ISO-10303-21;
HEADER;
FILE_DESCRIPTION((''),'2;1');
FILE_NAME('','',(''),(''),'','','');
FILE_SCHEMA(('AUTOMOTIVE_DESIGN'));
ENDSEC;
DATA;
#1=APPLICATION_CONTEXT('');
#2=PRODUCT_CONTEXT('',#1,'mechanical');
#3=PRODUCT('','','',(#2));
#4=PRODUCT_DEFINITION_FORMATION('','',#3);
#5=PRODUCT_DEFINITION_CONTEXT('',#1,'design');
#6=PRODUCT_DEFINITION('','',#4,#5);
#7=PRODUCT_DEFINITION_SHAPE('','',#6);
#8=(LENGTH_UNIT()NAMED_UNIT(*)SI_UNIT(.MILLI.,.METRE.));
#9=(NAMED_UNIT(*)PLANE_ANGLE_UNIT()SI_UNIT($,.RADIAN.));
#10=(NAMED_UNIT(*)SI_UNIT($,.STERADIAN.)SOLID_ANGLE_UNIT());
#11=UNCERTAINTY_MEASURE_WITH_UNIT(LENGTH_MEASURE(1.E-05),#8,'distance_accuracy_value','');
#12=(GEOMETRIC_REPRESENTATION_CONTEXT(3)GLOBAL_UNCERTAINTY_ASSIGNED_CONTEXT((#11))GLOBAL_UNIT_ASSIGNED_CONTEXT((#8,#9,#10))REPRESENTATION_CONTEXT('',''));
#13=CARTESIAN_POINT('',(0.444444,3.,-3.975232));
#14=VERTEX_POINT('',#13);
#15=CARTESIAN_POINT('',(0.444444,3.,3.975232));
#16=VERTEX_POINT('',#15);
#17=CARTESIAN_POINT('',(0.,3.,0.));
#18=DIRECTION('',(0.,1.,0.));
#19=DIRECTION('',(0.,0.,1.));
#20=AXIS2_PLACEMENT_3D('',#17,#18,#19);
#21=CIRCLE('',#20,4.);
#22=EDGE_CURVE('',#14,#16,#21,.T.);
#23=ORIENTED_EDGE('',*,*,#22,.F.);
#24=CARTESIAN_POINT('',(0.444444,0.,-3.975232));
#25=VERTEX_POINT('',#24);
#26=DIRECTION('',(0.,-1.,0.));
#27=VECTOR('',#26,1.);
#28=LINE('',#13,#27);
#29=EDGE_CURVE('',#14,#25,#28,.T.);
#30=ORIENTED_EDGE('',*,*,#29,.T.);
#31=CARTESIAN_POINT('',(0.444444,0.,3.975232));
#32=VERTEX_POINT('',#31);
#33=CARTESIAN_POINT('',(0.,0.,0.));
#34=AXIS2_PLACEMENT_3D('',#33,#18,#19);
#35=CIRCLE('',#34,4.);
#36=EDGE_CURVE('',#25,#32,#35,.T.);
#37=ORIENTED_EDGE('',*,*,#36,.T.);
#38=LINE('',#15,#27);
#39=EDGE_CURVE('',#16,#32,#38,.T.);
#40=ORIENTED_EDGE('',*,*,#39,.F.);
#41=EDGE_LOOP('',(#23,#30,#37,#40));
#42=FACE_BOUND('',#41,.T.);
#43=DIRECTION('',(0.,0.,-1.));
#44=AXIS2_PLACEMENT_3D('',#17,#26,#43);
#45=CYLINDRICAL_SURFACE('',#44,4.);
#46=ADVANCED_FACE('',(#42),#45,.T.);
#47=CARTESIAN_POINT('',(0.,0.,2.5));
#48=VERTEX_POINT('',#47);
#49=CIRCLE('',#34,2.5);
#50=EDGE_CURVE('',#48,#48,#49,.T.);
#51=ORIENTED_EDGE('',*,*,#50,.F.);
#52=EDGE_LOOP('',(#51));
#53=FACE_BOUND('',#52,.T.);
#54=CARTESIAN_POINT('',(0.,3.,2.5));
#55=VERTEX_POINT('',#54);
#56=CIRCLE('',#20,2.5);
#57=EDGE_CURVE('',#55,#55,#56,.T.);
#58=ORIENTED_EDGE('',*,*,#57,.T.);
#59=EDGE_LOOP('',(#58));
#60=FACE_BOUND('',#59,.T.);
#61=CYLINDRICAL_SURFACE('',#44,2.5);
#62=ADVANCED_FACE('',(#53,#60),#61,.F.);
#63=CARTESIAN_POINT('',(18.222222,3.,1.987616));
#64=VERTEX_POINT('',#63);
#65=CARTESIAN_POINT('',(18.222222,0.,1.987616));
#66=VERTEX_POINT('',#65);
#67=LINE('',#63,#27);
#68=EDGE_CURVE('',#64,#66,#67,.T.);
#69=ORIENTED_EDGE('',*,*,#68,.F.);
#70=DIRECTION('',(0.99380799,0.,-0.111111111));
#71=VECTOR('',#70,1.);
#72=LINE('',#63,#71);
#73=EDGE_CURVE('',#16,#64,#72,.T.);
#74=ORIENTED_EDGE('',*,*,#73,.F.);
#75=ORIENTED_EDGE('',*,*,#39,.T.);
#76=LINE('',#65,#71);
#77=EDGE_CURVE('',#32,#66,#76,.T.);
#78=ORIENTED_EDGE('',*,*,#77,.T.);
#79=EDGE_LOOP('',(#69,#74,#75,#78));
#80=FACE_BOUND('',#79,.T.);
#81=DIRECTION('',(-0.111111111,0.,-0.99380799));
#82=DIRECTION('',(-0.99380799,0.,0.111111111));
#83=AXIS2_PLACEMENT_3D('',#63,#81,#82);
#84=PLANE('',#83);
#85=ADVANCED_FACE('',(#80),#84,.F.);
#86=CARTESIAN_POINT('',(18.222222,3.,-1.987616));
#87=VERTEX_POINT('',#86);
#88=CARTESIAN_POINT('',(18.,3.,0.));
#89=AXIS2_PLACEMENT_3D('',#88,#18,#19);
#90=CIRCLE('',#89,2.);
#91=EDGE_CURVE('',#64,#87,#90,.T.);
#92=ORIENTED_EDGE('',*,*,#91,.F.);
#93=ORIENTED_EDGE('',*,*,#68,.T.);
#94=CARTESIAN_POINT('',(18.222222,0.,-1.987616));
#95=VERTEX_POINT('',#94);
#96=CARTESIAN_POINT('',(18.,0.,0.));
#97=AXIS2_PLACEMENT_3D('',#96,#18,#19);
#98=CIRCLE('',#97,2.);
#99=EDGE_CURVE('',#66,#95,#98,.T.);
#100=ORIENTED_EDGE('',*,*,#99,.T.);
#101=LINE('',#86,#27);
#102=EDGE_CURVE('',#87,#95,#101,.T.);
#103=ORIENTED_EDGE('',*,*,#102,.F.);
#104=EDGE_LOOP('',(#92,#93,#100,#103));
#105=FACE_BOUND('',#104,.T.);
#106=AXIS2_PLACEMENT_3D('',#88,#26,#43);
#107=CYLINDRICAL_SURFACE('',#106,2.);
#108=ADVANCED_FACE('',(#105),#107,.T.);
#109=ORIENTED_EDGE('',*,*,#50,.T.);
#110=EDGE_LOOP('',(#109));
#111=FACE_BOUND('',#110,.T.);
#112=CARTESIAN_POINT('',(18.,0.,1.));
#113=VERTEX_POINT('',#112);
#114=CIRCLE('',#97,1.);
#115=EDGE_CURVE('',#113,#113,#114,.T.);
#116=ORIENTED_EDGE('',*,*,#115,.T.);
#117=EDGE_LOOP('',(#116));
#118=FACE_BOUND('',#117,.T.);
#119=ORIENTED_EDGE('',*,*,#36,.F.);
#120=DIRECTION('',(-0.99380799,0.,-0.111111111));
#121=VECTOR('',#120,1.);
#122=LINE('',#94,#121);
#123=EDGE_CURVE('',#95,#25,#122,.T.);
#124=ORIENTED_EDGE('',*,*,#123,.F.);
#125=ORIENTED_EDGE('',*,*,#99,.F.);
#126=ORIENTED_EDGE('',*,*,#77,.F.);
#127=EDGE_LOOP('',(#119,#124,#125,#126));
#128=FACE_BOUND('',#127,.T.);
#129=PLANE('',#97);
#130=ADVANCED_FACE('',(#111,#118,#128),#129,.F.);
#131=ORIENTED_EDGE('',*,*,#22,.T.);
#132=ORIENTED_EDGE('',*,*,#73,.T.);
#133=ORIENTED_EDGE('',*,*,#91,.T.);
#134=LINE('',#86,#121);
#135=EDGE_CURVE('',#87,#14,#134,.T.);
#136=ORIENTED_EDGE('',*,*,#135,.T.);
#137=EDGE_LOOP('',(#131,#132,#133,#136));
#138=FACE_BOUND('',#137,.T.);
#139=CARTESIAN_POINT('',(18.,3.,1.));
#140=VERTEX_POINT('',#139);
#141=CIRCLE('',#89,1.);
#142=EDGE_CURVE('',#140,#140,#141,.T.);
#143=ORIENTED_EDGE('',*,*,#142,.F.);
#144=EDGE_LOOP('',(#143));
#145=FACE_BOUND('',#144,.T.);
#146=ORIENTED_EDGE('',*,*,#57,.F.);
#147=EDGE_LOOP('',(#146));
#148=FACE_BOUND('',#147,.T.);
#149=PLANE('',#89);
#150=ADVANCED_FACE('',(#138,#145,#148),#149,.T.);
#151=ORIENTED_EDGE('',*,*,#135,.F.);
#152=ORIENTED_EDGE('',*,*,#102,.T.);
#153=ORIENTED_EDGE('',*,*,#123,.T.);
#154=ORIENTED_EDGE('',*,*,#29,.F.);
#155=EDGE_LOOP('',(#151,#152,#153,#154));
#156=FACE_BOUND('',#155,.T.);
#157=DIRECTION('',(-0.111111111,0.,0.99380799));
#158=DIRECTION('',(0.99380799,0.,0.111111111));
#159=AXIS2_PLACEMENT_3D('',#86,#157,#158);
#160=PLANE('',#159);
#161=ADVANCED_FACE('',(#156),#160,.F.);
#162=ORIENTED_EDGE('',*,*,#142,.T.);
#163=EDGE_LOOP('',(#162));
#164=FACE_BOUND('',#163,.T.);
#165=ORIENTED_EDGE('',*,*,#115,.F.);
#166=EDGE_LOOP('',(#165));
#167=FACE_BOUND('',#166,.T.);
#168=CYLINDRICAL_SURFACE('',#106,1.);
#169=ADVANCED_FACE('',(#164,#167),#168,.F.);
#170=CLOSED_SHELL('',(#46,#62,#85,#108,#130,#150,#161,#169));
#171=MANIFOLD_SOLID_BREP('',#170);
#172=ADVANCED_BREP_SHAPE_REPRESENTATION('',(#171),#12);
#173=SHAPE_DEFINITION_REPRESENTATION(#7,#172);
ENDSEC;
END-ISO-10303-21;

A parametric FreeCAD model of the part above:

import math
import FreeCAD as App
import Part
import Sketcher

V = App.Vector
Q = App.Units.Quantity

doc = App.newDocument("Part")
body = doc.addObject("PartDesign::Body", "Body")

# Sketch on XZ plane
sketch1 = doc.addObject("Sketcher::SketchObject", "Sketch")
body.addObject(sketch1)
sketch1.AttachmentSupport = (doc.XZ_Plane, [""])
sketch1.MapMode = "FlatFace"
sketch1.addGeometry([
    Part.LineSegment(V(18.2, -2, 0), V(0.4, -4, 0)),  # 0
    Part.ArcOfCircle(Part.Circle(V(0, 0, 0), V(0, 0, 1), 4), math.radians(84), math.radians(276)),  # 1
    Part.LineSegment(V(0.4, 4, 0), V(18.2, 2, 0)),  # 2
    Part.ArcOfCircle(Part.Circle(V(18, 0, 0), V(0, 0, 1), 2), math.radians(-84), math.radians(84)),  # 3
    Part.Circle(V(0, 0, 0), V(0, 0, 1), 2.5),  # 4
    Part.Circle(V(18, 0, 0), V(0, 0, 1), 1),  # 5
], False)
sketch1.addConstraint([
    Sketcher.Constraint("Tangent", 0, 2, 1, 2),
    Sketcher.Constraint("Tangent", 1, 1, 2, 1),
    Sketcher.Constraint("Tangent", 2, 2, 3, 2),
    Sketcher.Constraint("Tangent", 3, 1, 0, 1),
    Sketcher.Constraint("Coincident", 1, 3, -1, 1),
    Sketcher.Constraint("Coincident", 4, 3, -1, 1),
    Sketcher.Constraint("Coincident", 5, 3, 3, 3),
    Sketcher.Constraint("PointOnObject", 3, 3, -1),
    Sketcher.Constraint("Diameter", 4, Q("5 mm")),
    Sketcher.Constraint("Diameter", 5, Q("2 mm")),
    Sketcher.Constraint("Radius", 1, Q("4 mm")),
    Sketcher.Constraint("Radius", 3, Q("2 mm")),
    Sketcher.Constraint("DistanceX", -1, 1, 3, 3, Q("18 mm")),
])
pad1 = doc.addObject("PartDesign::Pad", "Pad")
body.addObject(pad1)
pad1.Profile = sketch1
pad1.Length = 3
pad1.Reversed = True

doc.recompute()
